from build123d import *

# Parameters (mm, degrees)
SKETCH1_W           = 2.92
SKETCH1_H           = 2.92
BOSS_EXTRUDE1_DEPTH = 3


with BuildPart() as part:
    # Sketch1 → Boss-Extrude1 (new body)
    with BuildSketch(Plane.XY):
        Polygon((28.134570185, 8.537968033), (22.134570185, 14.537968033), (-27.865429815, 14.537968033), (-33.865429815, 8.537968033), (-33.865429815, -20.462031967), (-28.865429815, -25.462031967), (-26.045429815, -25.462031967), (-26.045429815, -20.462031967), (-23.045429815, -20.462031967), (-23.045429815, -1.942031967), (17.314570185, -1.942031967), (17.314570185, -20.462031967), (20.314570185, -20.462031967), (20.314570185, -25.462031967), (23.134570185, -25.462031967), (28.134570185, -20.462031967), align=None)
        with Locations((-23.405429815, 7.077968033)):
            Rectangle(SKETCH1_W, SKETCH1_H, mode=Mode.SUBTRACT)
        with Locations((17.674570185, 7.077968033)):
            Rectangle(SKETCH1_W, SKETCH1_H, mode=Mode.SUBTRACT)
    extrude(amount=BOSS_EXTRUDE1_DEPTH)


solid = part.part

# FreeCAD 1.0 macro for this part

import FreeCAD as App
import Part
import Sketcher

V = App.Vector


def add_polygon(sketch, points):
    """Adds a closed chain of lines whose ends are joined by coincident constraints."""
    first, n = sketch.GeometryCount, len(points)
    for a, b in zip(points, points[1:] + points[:1]):
        sketch.addGeometry(Part.LineSegment(App.Vector(*a, 0), App.Vector(*b, 0)), False)
    for i in range(n):
        sketch.addConstraint(Sketcher.Constraint("Coincident", first + i, 2, first + (i + 1) % n, 1))

doc = App.newDocument("Part")
body = doc.addObject("PartDesign::Body", "Body")

sketch1 = doc.addObject("Sketcher::SketchObject", "Sketch")
body.addObject(sketch1)
sketch1.AttachmentSupport = (doc.XY_Plane, [""])
sketch1.MapMode = "FlatFace"
add_polygon(sketch1, [(28.13457, 8.537968), (22.13457, 14.537968), (-27.86543, 14.537968), (-33.86543, 8.537968), (-33.86543, -20.462032), (-28.86543, -25.462032), (-26.04543, -25.462032), (-26.04543, -20.462032), (-23.04543, -20.462032), (-23.04543, -1.942032), (17.31457, -1.942032), (17.31457, -20.462032), (20.31457, -20.462032), (20.31457, -25.462032), (23.13457, -25.462032), (28.13457, -20.462032)])
add_polygon(sketch1, [(-21.94543, 5.617968), (-24.86543, 5.617968), (-24.86543, 8.537968), (-21.94543, 8.537968)])
add_polygon(sketch1, [(19.13457, 5.617968), (16.21457, 5.617968), (16.21457, 8.537968), (19.13457, 8.537968)])
sketch1.addConstraint([
    Sketcher.Constraint("Horizontal", 1),
    Sketcher.Constraint("Vertical", 3),
    Sketcher.Constraint("Horizontal", 5),
    Sketcher.Constraint("Vertical", 6),
    Sketcher.Constraint("Horizontal", 7),
    Sketcher.Constraint("Vertical", 8),
    Sketcher.Constraint("Horizontal", 9),
    Sketcher.Constraint("Vertical", 10),
    Sketcher.Constraint("Horizontal", 11),
    Sketcher.Constraint("Vertical", 12),
    Sketcher.Constraint("Horizontal", 13),
    Sketcher.Constraint("Vertical", 15),
    Sketcher.Constraint("Horizontal", 16),
    Sketcher.Constraint("Vertical", 17),
    Sketcher.Constraint("Horizontal", 18),
    Sketcher.Constraint("Vertical", 19),
    Sketcher.Constraint("Horizontal", 20),
    Sketcher.Constraint("Vertical", 21),
    Sketcher.Constraint("Horizontal", 22),
    Sketcher.Constraint("Vertical", 23),
    Sketcher.Constraint("Perpendicular", 0, 2),
    Sketcher.Constraint("Perpendicular", 2, 4),
    Sketcher.Constraint("Perpendicular", 4, 14),
    Sketcher.Constraint("Horizontal", 3, 2, 6, 2),
    Sketcher.Constraint("Horizontal", 7, 2, 10, 2),
    Sketcher.Constraint("Horizontal", 5, 2, 12, 2),
    Sketcher.Constraint("Horizontal", 11, 2, 14, 2),
    Sketcher.Constraint("Horizontal", 2, 2, 15, 2),
    Sketcher.Constraint("Horizontal", 15, 2, 17, 2),
    Sketcher.Constraint("Horizontal", 19, 2, 20, 2),
    Sketcher.Constraint("Horizontal", 18, 2, 21, 2),
    Sketcher.Constraint("Equal", 7, 11),
    Sketcher.Constraint("Equal", 5, 13),
    Sketcher.Constraint("Equal", 18, 20),
    Sketcher.Constraint("Equal", 22, 17),
    Sketcher.Constraint("Equal", 0, 2),
    Sketcher.Constraint("DistanceX", 1, 2, 1, 1, 50.0),
    Sketcher.Constraint("DistanceX", 7, 1, 7, 2, 3.0),
    Sketcher.Constraint("DistanceY", 3, 2, 3, 1, 29.0),
    Sketcher.Constraint("DistanceY", 6, 1, 6, 2, 5.0),
    Sketcher.Constraint("DistanceX", 2, 2, 1, 2, 6.0),
    Sketcher.Constraint("DistanceX", 1, 2, 16, 2, 3.0),
    Sketcher.Constraint("DistanceX", 22, 2, 0, 2, 3.0),
    Sketcher.Constraint("DistanceX", 5, 1, 5, 2, 2.82),
    Sketcher.Constraint("DistanceX", 16, 2, 16, 1, 2.92),
    Sketcher.Constraint("DistanceY", 8, 1, 8, 2, 18.52),
    Sketcher.Constraint("DistanceX", -1, 1, 0, 2, 22.13457),
    Sketcher.Constraint("DistanceY", -1, 1, 0, 2, 14.537968),
])
pad1 = doc.addObject("PartDesign::Pad", "Pad")
body.addObject(pad1)
pad1.Profile = sketch1
pad1.Length = 3

doc.recompute()
